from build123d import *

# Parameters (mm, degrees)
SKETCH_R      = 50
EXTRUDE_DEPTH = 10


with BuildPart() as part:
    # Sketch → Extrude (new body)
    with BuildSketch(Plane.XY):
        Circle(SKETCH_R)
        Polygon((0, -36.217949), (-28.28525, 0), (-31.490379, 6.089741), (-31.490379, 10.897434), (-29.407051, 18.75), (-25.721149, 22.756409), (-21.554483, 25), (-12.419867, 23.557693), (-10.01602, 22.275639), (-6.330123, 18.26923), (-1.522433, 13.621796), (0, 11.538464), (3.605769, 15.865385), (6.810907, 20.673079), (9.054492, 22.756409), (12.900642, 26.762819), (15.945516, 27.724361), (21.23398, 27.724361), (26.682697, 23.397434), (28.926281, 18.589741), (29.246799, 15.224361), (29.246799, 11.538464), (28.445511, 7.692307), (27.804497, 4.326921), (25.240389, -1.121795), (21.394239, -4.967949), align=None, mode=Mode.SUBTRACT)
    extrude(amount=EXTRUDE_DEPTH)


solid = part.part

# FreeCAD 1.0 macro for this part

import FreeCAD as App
import Part
import Sketcher
Q = App.Units.Quantity

doc = App.newDocument("Part")
params = doc.addObject("Spreadsheet::Sheet", "Params")
for row, (alias, value) in enumerate([
    ("sketch1_diameter", "100 mm"),
    ("pad1_length", "10 mm"),
], start=1):
    params.set(f"A{row}", alias)
    params.set(f"B{row}", "=" + value)
    params.setAlias(f"B{row}", alias)

body = doc.addObject("PartDesign::Body", "Body")

# Sketch on XY plane
sketch1 = doc.addObject("Sketcher::SketchObject", "Sketch")
body.addObject(sketch1)
sketch1.AttachmentSupport = (doc.XY_Plane, [""])
sketch1.MapMode = "FlatFace"
sketch1.addGeometry([
    Part.Circle(App.Vector(0, 0, 0), App.Vector(0, 0, 1), 50),  # 0
    Part.LineSegment(App.Vector(21.4, -5, 0), App.Vector(0, -36.2, 0)),  # 1
    Part.LineSegment(App.Vector(0, -36.2, 0), App.Vector(-28.3, 0, 0)),  # 2
    Part.LineSegment(App.Vector(-28.3, 0, 0), App.Vector(-31.5, 6.1, 0)),  # 3
    Part.LineSegment(App.Vector(-31.5, 6.1, 0), App.Vector(-31.5, 10.9, 0)),  # 4
    Part.LineSegment(App.Vector(-31.5, 10.9, 0), App.Vector(-29.4, 18.8, 0)),  # 5
    Part.LineSegment(App.Vector(-29.4, 18.8, 0), App.Vector(-25.7, 22.8, 0)),  # 6
    Part.LineSegment(App.Vector(-25.7, 22.8, 0), App.Vector(-21.6, 25, 0)),  # 7
    Part.LineSegment(App.Vector(-21.6, 25, 0), App.Vector(-12.4, 23.6, 0)),  # 8
    Part.LineSegment(App.Vector(-12.4, 23.6, 0), App.Vector(-10, 22.3, 0)),  # 9
    Part.LineSegment(App.Vector(-10, 22.3, 0), App.Vector(-6.3, 18.3, 0)),  # 10
    Part.LineSegment(App.Vector(-6.3, 18.3, 0), App.Vector(-1.5, 13.6, 0)),  # 11
    Part.LineSegment(App.Vector(-1.5, 13.6, 0), App.Vector(0, 11.5, 0)),  # 12
    Part.LineSegment(App.Vector(0, 11.5, 0), App.Vector(3.6, 15.9, 0)),  # 13
    Part.LineSegment(App.Vector(3.6, 15.9, 0), App.Vector(6.8, 20.7, 0)),  # 14
    Part.LineSegment(App.Vector(6.8, 20.7, 0), App.Vector(9.1, 22.8, 0)),  # 15
    Part.LineSegment(App.Vector(9.1, 22.8, 0), App.Vector(12.9, 26.8, 0)),  # 16
    Part.LineSegment(App.Vector(12.9, 26.8, 0), App.Vector(15.9, 27.7, 0)),  # 17
    Part.LineSegment(App.Vector(15.9, 27.7, 0), App.Vector(21.2, 27.7, 0)),  # 18
    Part.LineSegment(App.Vector(21.2, 27.7, 0), App.Vector(26.7, 23.4, 0)),  # 19
    Part.LineSegment(App.Vector(26.7, 23.4, 0), App.Vector(28.9, 18.6, 0)),  # 20
    Part.LineSegment(App.Vector(28.9, 18.6, 0), App.Vector(29.2, 15.2, 0)),  # 21
    Part.LineSegment(App.Vector(29.2, 15.2, 0), App.Vector(29.2, 11.5, 0)),  # 22
    Part.LineSegment(App.Vector(29.2, 11.5, 0), App.Vector(28.4, 7.7, 0)),  # 23
    Part.LineSegment(App.Vector(28.4, 7.7, 0), App.Vector(27.8, 4.3, 0)),  # 24
    Part.LineSegment(App.Vector(27.8, 4.3, 0), App.Vector(25.2, -1.1, 0)),  # 25
    Part.LineSegment(App.Vector(25.2, -1.1, 0), App.Vector(21.4, -5, 0)),  # 26
], False)
sketch1.addConstraint([
    Sketcher.Constraint("Coincident", 1, 2, 2, 1),
    Sketcher.Constraint("Coincident", 2, 2, 3, 1),
    Sketcher.Constraint("Coincident", 3, 2, 4, 1),
    Sketcher.Constraint("Coincident", 4, 2, 5, 1),
    Sketcher.Constraint("Coincident", 5, 2, 6, 1),
    Sketcher.Constraint("Coincident", 6, 2, 7, 1),
    Sketcher.Constraint("Coincident", 7, 2, 8, 1),
    Sketcher.Constraint("Coincident", 8, 2, 9, 1),
    Sketcher.Constraint("Coincident", 9, 2, 10, 1),
    Sketcher.Constraint("Coincident", 10, 2, 11, 1),
    Sketcher.Constraint("Coincident", 11, 2, 12, 1),
    Sketcher.Constraint("Coincident", 12, 2, 13, 1),
    Sketcher.Constraint("Coincident", 13, 2, 14, 1),
    Sketcher.Constraint("Coincident", 14, 2, 15, 1),
    Sketcher.Constraint("Coincident", 15, 2, 16, 1),
    Sketcher.Constraint("Coincident", 16, 2, 17, 1),
    Sketcher.Constraint("Coincident", 17, 2, 18, 1),
    Sketcher.Constraint("Coincident", 18, 2, 19, 1),
    Sketcher.Constraint("Coincident", 19, 2, 20, 1),
    Sketcher.Constraint("Coincident", 20, 2, 21, 1),
    Sketcher.Constraint("Coincident", 21, 2, 22, 1),
    Sketcher.Constraint("Coincident", 22, 2, 23, 1),
    Sketcher.Constraint("Coincident", 23, 2, 24, 1),
    Sketcher.Constraint("Coincident", 24, 2, 25, 1),
    Sketcher.Constraint("Coincident", 25, 2, 26, 1),
    Sketcher.Constraint("Coincident", 26, 2, 1, 1),
    Sketcher.Constraint("Vertical", 4),
    Sketcher.Constraint("Horizontal", 18),
    Sketcher.Constraint("Vertical", 22),
    Sketcher.Constraint("Coincident", 0, 3, -1, 1),
    Sketcher.Constraint("PointOnObject", 1, 2, -2),
    Sketcher.Constraint("PointOnObject", 2, 2, -1),
    Sketcher.Constraint("PointOnObject", 12, 2, -2),
    Sketcher.Constraint("Horizontal", 6, 2, 15, 2),
    Sketcher.Constraint("Horizontal", 12, 2, 22, 2),
    Sketcher.Constraint("Diameter", 0, Q("100 mm")),
    Sketcher.Constraint("DistanceY", -1, 1, 7, 2, Q("25 mm")),
    Sketcher.Constraint("DistanceY", 21, 2, 18, 2, Q("12.5 mm")),
    Sketcher.Constraint("DistanceY", -1, 1, 5, 2, Q("18.75 mm")),
    Sketcher.Constraint("Distance", 10, Q("5.444001 mm")),
    Sketcher.Constraint("Distance", 3, Q("6.8817 mm")),
    Sketcher.Constraint("DistanceX", -1, 1, 21, 2, Q("29.246799 mm")),
    Sketcher.Constraint("DistanceX", 5, 2, 2, 2, Q("1.121801 mm")),
    Sketcher.Constraint("DistanceX", 5, 2, 6, 2, Q("3.685902 mm")),
    Sketcher.Constraint("DistanceX", 18, 2, 20, 2, Q("7.692301 mm")),
    Sketcher.Constraint("DistanceX", 19, 2, 21, 2, Q("2.564102 mm")),
    Sketcher.Constraint("DistanceX", 24, 2, 22, 2, Q("1.442302 mm")),
    Sketcher.Constraint("Distance", 8, Q("9.247781 mm")),
    Sketcher.Constraint("Distance", 9, Q("2.724361 mm")),
    Sketcher.Constraint("Distance", 13, Q("5.63239 mm")),
    Sketcher.Constraint("Distance", 15, Q("3.061689 mm")),
    Sketcher.Constraint("Distance", 17, Q("3.19309 mm")),
    Sketcher.Constraint("Distance", 19, Q("6.957788 mm")),
    Sketcher.Constraint("Distance", 20, Q("5.305429 mm")),
    Sketcher.Constraint("Distance", 21, Q("3.380609 mm")),
    Sketcher.Constraint("Distance", 23, Q("3.928738 mm")),
    Sketcher.Constraint("Distance", 24, Q("3.42589 mm")),
    Sketcher.Constraint("Distance", 25, Q("6.02189 mm")),
    Sketcher.Constraint("Distance", 26, Q("5.43928 mm")),
    Sketcher.Constraint("DistanceX", 18, 1, 18, 2, Q("5.288464 mm")),
    Sketcher.Constraint("DistanceY", 4, 1, 4, 2, Q("4.807693 mm")),
    Sketcher.Constraint("DistanceY", 22, 2, 22, 1, Q("3.685897 mm")),
    Sketcher.Constraint("DistanceY", 1, 2, -1, 1, Q("36.217949 mm")),
    Sketcher.Constraint("DistanceX", 2, 2, -1, 1, Q("28.28525 mm")),
    Sketcher.Constraint("DistanceX", 3, 2, -1, 1, Q("31.490379 mm")),
    Sketcher.Constraint("DistanceY", -1, 1, 6, 2, Q("22.756409 mm")),
    Sketcher.Constraint("DistanceX", 9, 2, -1, 1, Q("10.01602 mm")),
    Sketcher.Constraint("DistanceY", -1, 1, 9, 2, Q("22.275639 mm")),
    Sketcher.Constraint("DistanceY", -1, 1, 10, 2, Q("18.26923 mm")),
    Sketcher.Constraint("DistanceX", -1, 1, 13, 2, Q("3.605769 mm")),
    Sketcher.Constraint("DistanceY", -1, 1, 14, 2, Q("20.673079 mm")),
    Sketcher.Constraint("DistanceY", -1, 1, 16, 2, Q("26.762819 mm")),
    Sketcher.Constraint("DistanceY", -1, 1, 17, 2, Q("27.724361 mm")),
    Sketcher.Constraint("DistanceX", -1, 1, 23, 2, Q("28.445511 mm")),
    Sketcher.Constraint("DistanceX", -1, 1, 25, 2, Q("25.240389 mm")),
    Sketcher.Constraint("DistanceX", -1, 1, 26, 2, Q("21.394239 mm")),
    Sketcher.Constraint("DistanceY", 4, 2, 8, 2, Q("12.660259 mm")),
    Sketcher.Constraint("DistanceX", 10, 2, 11, 2, Q("4.80769 mm")),
    Sketcher.Constraint("DistanceY", 11, 2, 13, 2, Q("2.243589 mm")),
    Sketcher.Constraint("DistanceX", 13, 2, 14, 2, Q("3.205138 mm")),
])
sketch1.setExpression("Constraints[35]", "Params.sketch1_diameter")
pad1 = doc.addObject("PartDesign::Pad", "Pad")
body.addObject(pad1)
pad1.Profile = sketch1
pad1.setExpression("Length", "Params.pad1_length")

doc.recompute()
